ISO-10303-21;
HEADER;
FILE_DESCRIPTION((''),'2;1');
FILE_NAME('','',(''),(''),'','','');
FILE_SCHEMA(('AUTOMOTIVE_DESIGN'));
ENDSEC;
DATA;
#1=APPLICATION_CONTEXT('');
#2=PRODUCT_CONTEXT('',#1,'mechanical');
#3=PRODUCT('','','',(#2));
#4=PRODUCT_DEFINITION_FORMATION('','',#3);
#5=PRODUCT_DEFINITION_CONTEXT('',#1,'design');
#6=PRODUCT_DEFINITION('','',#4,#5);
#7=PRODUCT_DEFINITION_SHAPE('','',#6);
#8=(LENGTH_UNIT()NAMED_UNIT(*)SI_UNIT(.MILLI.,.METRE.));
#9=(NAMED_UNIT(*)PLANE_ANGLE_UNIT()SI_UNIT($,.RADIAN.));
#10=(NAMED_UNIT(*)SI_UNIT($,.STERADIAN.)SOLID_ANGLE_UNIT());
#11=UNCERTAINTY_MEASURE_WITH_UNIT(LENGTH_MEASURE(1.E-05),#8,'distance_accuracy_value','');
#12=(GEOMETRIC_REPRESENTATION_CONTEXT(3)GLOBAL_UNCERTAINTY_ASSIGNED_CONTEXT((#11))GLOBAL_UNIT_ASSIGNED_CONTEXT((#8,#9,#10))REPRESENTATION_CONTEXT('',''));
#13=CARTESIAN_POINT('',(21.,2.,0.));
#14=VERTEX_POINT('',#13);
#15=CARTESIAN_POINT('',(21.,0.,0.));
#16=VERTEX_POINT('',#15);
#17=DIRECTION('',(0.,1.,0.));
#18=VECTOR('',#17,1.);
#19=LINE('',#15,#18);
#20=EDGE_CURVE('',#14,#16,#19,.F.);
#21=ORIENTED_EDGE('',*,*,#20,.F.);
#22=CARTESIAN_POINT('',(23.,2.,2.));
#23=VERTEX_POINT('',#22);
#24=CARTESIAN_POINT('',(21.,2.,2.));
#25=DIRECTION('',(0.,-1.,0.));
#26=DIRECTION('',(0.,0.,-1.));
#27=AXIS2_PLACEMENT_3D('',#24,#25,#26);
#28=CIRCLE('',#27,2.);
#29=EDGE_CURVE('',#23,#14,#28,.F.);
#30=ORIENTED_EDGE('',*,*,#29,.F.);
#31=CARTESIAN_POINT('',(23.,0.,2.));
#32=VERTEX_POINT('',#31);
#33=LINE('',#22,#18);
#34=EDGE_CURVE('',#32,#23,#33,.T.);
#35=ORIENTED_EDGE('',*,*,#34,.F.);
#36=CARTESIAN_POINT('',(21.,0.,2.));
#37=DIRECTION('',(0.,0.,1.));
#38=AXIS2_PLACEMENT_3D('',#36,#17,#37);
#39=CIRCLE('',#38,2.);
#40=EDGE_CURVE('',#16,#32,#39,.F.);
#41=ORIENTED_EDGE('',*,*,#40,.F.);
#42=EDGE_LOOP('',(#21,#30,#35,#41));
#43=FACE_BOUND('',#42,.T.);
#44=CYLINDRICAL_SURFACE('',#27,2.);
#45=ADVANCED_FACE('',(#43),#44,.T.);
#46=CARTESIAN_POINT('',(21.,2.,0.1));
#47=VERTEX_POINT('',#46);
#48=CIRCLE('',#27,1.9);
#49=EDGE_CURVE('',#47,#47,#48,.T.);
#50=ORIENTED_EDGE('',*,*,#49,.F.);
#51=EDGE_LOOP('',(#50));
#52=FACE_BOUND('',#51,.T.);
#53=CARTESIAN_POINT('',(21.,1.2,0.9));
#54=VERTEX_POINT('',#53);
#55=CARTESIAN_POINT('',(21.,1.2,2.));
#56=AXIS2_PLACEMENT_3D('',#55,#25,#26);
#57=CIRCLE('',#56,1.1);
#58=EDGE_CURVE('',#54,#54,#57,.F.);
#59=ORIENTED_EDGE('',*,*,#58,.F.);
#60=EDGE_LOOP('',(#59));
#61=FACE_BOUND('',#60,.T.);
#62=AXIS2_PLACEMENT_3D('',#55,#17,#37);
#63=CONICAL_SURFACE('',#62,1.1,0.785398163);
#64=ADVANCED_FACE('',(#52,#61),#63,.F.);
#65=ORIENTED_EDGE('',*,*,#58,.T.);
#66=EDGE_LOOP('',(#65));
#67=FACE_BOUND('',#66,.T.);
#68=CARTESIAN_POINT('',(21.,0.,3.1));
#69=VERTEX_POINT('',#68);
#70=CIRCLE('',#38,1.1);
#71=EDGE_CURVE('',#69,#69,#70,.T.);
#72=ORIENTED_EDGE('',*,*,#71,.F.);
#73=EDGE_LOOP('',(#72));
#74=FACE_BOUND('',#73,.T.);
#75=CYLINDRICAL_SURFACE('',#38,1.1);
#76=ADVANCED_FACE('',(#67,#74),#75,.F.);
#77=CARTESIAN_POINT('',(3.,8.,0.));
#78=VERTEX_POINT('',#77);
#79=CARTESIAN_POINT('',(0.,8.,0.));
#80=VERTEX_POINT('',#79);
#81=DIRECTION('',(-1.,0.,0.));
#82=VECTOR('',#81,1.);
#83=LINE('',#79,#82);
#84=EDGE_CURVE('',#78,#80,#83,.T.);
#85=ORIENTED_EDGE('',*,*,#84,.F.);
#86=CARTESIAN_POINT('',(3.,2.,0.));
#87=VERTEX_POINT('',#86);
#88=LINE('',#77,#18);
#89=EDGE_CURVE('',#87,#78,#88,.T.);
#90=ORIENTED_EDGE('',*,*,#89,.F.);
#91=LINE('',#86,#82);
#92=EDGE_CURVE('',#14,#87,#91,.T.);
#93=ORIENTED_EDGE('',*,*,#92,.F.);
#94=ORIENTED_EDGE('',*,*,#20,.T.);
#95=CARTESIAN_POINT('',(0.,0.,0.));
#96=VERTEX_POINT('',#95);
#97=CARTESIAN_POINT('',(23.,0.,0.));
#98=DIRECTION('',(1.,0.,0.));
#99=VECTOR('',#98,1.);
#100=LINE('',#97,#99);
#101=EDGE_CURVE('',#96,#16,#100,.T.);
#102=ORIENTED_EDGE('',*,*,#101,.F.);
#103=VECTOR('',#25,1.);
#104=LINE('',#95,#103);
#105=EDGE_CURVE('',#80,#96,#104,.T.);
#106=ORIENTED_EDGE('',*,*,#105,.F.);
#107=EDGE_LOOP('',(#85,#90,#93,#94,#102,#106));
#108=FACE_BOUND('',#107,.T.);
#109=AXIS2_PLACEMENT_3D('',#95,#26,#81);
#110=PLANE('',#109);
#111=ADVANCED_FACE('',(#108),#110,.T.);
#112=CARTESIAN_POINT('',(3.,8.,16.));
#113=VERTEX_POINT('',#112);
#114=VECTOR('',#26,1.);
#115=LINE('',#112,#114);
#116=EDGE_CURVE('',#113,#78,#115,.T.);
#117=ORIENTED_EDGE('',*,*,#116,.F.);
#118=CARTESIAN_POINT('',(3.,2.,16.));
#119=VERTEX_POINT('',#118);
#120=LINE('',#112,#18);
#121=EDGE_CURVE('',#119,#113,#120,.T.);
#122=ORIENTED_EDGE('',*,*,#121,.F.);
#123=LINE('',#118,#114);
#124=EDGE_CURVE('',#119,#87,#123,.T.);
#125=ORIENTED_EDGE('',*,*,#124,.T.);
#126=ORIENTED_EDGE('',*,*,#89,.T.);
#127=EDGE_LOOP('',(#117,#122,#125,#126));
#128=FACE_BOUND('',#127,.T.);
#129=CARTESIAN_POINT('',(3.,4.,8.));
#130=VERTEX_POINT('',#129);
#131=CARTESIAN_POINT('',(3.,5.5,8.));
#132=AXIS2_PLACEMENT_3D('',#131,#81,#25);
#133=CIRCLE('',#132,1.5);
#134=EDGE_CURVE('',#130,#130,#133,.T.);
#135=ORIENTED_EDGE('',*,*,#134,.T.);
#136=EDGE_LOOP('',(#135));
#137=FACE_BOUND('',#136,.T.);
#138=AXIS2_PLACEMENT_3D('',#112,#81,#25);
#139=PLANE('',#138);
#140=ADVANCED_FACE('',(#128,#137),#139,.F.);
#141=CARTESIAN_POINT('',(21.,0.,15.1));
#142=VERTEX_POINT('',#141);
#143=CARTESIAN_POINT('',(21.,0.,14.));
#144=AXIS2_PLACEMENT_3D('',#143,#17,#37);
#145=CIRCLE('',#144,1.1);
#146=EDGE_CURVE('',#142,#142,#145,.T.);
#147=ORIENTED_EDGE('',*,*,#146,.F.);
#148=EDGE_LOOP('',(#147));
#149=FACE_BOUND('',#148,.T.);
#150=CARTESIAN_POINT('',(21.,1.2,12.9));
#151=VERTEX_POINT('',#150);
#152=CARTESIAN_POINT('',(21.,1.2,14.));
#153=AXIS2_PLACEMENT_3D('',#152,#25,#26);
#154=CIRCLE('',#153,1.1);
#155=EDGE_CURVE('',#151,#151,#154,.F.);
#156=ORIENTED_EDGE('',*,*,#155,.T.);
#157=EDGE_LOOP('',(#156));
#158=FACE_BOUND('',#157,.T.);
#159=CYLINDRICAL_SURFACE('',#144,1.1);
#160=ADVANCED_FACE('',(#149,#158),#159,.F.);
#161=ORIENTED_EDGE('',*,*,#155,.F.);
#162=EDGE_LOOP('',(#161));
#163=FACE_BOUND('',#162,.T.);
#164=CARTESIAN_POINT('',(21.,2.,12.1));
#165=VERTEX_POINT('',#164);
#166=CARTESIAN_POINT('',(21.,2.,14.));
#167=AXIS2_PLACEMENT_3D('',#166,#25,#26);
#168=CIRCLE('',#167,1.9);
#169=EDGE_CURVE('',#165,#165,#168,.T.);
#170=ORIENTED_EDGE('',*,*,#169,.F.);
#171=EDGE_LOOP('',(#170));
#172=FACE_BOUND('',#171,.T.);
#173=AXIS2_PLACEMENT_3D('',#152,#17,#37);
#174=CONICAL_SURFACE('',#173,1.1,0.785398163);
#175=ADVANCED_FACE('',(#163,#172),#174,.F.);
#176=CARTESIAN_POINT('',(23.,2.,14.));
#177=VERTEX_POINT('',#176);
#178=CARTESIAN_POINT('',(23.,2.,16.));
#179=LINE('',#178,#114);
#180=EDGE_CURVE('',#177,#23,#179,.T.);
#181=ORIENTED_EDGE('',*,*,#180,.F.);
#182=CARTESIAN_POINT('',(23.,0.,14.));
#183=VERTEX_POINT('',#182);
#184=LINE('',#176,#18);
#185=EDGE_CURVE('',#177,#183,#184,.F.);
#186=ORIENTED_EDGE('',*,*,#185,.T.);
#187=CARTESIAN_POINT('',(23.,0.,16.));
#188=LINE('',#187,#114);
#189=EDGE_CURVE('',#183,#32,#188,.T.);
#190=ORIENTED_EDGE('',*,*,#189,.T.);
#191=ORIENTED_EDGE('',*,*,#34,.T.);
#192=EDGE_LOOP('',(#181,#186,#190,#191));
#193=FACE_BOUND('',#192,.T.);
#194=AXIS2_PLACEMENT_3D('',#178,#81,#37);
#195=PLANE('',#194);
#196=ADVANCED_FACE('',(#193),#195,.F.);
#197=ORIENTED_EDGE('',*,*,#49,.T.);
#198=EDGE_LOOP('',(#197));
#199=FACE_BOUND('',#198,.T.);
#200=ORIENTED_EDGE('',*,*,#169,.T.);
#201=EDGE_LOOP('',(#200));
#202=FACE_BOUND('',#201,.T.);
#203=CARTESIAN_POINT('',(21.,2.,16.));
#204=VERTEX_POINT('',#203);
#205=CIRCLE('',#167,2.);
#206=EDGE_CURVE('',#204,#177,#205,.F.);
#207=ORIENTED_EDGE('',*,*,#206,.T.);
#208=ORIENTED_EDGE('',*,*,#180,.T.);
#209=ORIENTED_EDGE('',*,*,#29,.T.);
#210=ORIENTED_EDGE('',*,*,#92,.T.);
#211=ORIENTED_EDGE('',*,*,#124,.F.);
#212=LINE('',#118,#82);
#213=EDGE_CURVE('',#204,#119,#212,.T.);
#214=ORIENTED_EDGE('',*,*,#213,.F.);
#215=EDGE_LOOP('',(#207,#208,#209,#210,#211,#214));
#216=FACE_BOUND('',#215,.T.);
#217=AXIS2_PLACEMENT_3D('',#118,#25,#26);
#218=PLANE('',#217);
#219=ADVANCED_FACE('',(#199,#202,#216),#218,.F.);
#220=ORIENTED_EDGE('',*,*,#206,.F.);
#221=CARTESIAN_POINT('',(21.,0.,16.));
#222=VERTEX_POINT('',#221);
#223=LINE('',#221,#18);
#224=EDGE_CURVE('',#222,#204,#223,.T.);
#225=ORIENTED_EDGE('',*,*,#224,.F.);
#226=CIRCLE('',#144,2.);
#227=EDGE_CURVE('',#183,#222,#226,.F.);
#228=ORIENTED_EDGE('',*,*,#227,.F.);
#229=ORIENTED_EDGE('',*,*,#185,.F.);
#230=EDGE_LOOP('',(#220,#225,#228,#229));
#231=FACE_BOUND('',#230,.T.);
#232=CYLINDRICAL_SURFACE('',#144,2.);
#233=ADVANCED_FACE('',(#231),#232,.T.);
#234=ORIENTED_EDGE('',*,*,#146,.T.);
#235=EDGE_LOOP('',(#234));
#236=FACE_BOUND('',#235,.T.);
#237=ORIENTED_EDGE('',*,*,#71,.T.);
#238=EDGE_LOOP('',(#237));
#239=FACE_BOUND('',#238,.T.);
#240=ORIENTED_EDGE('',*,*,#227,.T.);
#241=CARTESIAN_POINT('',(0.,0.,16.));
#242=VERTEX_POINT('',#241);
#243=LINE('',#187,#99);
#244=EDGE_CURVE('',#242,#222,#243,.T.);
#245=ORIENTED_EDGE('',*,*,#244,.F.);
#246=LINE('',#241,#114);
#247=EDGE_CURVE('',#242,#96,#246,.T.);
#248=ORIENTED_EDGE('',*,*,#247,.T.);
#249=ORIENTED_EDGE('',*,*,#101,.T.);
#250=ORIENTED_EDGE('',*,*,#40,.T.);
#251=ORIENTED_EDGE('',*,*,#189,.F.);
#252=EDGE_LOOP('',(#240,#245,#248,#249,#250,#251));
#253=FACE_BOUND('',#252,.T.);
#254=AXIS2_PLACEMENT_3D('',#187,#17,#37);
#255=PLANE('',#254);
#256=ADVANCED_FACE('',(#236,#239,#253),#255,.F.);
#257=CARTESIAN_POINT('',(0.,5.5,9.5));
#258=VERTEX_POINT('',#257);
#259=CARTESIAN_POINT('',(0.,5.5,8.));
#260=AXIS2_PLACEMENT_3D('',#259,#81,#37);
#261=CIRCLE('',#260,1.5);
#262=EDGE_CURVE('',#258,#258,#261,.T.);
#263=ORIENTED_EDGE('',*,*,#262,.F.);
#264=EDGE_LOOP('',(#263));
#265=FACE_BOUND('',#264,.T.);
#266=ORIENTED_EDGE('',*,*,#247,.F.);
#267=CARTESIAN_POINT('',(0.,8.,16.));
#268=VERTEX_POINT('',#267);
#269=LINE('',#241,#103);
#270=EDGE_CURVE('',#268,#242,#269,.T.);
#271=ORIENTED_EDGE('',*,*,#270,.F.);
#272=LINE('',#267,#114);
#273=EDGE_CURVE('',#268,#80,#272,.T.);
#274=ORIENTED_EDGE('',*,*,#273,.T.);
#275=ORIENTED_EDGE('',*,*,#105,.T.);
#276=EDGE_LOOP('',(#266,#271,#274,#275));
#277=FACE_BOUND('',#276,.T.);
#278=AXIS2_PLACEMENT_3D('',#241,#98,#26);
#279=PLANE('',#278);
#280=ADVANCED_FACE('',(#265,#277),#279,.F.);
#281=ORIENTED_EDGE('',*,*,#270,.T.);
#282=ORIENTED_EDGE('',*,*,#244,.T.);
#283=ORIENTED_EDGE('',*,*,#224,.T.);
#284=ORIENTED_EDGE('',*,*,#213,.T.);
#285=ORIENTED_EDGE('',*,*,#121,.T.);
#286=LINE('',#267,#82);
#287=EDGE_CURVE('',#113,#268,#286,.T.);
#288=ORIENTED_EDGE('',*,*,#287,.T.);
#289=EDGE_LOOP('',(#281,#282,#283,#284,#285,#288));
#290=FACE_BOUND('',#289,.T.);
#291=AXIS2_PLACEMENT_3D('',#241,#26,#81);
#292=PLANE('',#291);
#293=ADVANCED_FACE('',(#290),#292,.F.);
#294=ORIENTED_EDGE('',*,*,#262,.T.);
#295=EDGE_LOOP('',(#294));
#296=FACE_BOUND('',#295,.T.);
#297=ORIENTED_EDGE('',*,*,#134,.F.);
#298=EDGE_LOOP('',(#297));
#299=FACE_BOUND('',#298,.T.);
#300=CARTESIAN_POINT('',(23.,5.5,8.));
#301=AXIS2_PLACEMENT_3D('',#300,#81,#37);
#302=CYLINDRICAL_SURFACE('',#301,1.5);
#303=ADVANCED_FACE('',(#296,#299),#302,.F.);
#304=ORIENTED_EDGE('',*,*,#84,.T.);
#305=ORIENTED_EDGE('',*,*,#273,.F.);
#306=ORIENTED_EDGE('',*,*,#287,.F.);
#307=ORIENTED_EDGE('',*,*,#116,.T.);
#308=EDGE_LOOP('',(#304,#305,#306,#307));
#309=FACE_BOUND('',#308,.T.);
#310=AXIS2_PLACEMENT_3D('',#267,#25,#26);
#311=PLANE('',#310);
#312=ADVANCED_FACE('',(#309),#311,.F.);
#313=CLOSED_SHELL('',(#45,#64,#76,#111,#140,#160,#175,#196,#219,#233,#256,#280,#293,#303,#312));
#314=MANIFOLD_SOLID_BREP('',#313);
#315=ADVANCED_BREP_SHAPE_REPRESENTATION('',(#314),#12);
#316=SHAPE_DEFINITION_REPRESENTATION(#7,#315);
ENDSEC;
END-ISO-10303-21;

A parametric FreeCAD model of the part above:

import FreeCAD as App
import Part
import Sketcher


def edges_at(feature, points):
    """Names of the edges that pass closest to the given points."""
    edges = feature.Shape.Edges
    near = lambda p: min(range(len(edges)), key=lambda i: edges[i].distToShape(Part.Vertex(*p))[0])
    return sorted({f"Edge{near(p) + 1}" for p in points})

doc = App.newDocument("Part")
body = doc.addObject("PartDesign::Body", "Body")

# Sketch on XY plane
sketch1 = doc.addObject("Sketcher::SketchObject", "Sketch")
body.addObject(sketch1)
sketch1.AttachmentSupport = (doc.XY_Plane, [""])
sketch1.MapMode = "FlatFace"
sketch1.addGeometry(Part.LineSegment(App.Vector(0, 8, 0), App.Vector(0, 0, 0)), False)
sketch1.addGeometry(Part.LineSegment(App.Vector(0, 0, 0), App.Vector(23, 0, 0)), False)
sketch1.addGeometry(Part.LineSegment(App.Vector(23, 0, 0), App.Vector(23, 2, 0)), False)
sketch1.addGeometry(Part.LineSegment(App.Vector(23, 2, 0), App.Vector(3, 2, 0)), False)
sketch1.addGeometry(Part.LineSegment(App.Vector(3, 2, 0), App.Vector(3, 8, 0)), False)
sketch1.addGeometry(Part.LineSegment(App.Vector(3, 8, 0), App.Vector(0, 8, 0)), False)
sketch1.addConstraint(Sketcher.Constraint("Coincident", 0, 2, 1, 1))
sketch1.addConstraint(Sketcher.Constraint("Coincident", 1, 2, 2, 1))
sketch1.addConstraint(Sketcher.Constraint("Coincident", 2, 2, 3, 1))
sketch1.addConstraint(Sketcher.Constraint("Coincident", 3, 2, 4, 1))
sketch1.addConstraint(Sketcher.Constraint("Coincident", 4, 2, 5, 1))
sketch1.addConstraint(Sketcher.Constraint("Coincident", 5, 2, 0, 1))
sketch1.addConstraint(Sketcher.Constraint("Vertical", 0))
sketch1.addConstraint(Sketcher.Constraint("Horizontal", 1))
sketch1.addConstraint(Sketcher.Constraint("Vertical", 2))
sketch1.addConstraint(Sketcher.Constraint("Horizontal", 3))
sketch1.addConstraint(Sketcher.Constraint("Vertical", 4))
sketch1.addConstraint(Sketcher.Constraint("Horizontal", 5))
sketch1.addConstraint(Sketcher.Constraint("Coincident", 0, 2, -1, 1))
sketch1.addConstraint(Sketcher.Constraint("DistanceX", 1, 1, 1, 2, 23.0))
sketch1.addConstraint(Sketcher.Constraint("DistanceX", 3, 2, 3, 1, 20.0))
sketch1.addConstraint(Sketcher.Constraint("DistanceY", 0, 2, 0, 1, 8.0))
sketch1.addConstraint(Sketcher.Constraint("DistanceY", 2, 1, 2, 2, 2.0))
pad1 = doc.addObject("PartDesign::Pad", "Pad")
body.addObject(pad1)
pad1.Profile = sketch1
pad1.Length = 16

# Sketch on XZ plane
sketch2 = doc.addObject("Sketcher::SketchObject", "Sketch001")
body.addObject(sketch2)
sketch2.AttachmentSupport = (doc.XZ_Plane, [""])
sketch2.MapMode = "FlatFace"
sketch2.AttachmentOffset = App.Placement(App.Vector(0, 0, -2), App.Rotation())
sketch2.addGeometry(Part.Circle(App.Vector(21, 2, 0), App.Vector(0, 0, 1), 1.1), False)
sketch2.addGeometry(Part.Circle(App.Vector(21, 14, 0), App.Vector(0, 0, 1), 1.1), False)
sketch2.addConstraint(Sketcher.Constraint("Equal", 0, 1))
sketch2.addConstraint(Sketcher.Constraint("Vertical", 0, 3, 1, 3))
sketch2.addConstraint(Sketcher.Constraint("Diameter", 0, 2.2))
sketch2.addConstraint(Sketcher.Constraint("DistanceX", -1, 1, 0, 3, 21.0))
sketch2.addConstraint(Sketcher.Constraint("DistanceY", -1, 1, 0, 3, 2.0))
sketch2.addConstraint(Sketcher.Constraint("DistanceY", -1, 1, 1, 3, 14.0))
pocket1 = doc.addObject("PartDesign::Pocket", "Pocket")
body.addObject(pocket1)
pocket1.Profile = sketch2
pocket1.Length = 2
pocket1.Reversed = True

# Sketch on YZ plane
sketch3 = doc.addObject("Sketcher::SketchObject", "Sketch002")
body.addObject(sketch3)
sketch3.AttachmentSupport = (doc.YZ_Plane, [""])
sketch3.MapMode = "FlatFace"
sketch3.addGeometry(Part.Circle(App.Vector(5.5, 8, 0), App.Vector(0, 0, 1), 1.5), False)
sketch3.addConstraint(Sketcher.Constraint("Diameter", 0, 3.0))
sketch3.addConstraint(Sketcher.Constraint("DistanceY", -1, 1, 0, 3, 8.0))
sketch3.addConstraint(Sketcher.Constraint("DistanceX", -1, 1, 0, 3, 5.5))
pocket2 = doc.addObject("PartDesign::Pocket", "Pocket001")
body.addObject(pocket2)
pocket2.Profile = sketch3
pocket2.Type = "ThroughAll"
pocket2.Reversed = True
doc.recompute()

chamfer = doc.addObject("PartDesign::Chamfer", "Chamfer")
body.addObject(chamfer)
chamfer.Base = (pocket2, edges_at(pocket2, [(19.9, 2, 2), (19.9, 2, 14)]))
chamfer.Size = 0.8
doc.recompute()

fillet = doc.addObject("PartDesign::Fillet", "Fillet")
body.addObject(fillet)
fillet.Base = (chamfer, edges_at(chamfer, [(23, 1, 16), (23, 1, 0)]))
fillet.Radius = 2

doc.recompute()
